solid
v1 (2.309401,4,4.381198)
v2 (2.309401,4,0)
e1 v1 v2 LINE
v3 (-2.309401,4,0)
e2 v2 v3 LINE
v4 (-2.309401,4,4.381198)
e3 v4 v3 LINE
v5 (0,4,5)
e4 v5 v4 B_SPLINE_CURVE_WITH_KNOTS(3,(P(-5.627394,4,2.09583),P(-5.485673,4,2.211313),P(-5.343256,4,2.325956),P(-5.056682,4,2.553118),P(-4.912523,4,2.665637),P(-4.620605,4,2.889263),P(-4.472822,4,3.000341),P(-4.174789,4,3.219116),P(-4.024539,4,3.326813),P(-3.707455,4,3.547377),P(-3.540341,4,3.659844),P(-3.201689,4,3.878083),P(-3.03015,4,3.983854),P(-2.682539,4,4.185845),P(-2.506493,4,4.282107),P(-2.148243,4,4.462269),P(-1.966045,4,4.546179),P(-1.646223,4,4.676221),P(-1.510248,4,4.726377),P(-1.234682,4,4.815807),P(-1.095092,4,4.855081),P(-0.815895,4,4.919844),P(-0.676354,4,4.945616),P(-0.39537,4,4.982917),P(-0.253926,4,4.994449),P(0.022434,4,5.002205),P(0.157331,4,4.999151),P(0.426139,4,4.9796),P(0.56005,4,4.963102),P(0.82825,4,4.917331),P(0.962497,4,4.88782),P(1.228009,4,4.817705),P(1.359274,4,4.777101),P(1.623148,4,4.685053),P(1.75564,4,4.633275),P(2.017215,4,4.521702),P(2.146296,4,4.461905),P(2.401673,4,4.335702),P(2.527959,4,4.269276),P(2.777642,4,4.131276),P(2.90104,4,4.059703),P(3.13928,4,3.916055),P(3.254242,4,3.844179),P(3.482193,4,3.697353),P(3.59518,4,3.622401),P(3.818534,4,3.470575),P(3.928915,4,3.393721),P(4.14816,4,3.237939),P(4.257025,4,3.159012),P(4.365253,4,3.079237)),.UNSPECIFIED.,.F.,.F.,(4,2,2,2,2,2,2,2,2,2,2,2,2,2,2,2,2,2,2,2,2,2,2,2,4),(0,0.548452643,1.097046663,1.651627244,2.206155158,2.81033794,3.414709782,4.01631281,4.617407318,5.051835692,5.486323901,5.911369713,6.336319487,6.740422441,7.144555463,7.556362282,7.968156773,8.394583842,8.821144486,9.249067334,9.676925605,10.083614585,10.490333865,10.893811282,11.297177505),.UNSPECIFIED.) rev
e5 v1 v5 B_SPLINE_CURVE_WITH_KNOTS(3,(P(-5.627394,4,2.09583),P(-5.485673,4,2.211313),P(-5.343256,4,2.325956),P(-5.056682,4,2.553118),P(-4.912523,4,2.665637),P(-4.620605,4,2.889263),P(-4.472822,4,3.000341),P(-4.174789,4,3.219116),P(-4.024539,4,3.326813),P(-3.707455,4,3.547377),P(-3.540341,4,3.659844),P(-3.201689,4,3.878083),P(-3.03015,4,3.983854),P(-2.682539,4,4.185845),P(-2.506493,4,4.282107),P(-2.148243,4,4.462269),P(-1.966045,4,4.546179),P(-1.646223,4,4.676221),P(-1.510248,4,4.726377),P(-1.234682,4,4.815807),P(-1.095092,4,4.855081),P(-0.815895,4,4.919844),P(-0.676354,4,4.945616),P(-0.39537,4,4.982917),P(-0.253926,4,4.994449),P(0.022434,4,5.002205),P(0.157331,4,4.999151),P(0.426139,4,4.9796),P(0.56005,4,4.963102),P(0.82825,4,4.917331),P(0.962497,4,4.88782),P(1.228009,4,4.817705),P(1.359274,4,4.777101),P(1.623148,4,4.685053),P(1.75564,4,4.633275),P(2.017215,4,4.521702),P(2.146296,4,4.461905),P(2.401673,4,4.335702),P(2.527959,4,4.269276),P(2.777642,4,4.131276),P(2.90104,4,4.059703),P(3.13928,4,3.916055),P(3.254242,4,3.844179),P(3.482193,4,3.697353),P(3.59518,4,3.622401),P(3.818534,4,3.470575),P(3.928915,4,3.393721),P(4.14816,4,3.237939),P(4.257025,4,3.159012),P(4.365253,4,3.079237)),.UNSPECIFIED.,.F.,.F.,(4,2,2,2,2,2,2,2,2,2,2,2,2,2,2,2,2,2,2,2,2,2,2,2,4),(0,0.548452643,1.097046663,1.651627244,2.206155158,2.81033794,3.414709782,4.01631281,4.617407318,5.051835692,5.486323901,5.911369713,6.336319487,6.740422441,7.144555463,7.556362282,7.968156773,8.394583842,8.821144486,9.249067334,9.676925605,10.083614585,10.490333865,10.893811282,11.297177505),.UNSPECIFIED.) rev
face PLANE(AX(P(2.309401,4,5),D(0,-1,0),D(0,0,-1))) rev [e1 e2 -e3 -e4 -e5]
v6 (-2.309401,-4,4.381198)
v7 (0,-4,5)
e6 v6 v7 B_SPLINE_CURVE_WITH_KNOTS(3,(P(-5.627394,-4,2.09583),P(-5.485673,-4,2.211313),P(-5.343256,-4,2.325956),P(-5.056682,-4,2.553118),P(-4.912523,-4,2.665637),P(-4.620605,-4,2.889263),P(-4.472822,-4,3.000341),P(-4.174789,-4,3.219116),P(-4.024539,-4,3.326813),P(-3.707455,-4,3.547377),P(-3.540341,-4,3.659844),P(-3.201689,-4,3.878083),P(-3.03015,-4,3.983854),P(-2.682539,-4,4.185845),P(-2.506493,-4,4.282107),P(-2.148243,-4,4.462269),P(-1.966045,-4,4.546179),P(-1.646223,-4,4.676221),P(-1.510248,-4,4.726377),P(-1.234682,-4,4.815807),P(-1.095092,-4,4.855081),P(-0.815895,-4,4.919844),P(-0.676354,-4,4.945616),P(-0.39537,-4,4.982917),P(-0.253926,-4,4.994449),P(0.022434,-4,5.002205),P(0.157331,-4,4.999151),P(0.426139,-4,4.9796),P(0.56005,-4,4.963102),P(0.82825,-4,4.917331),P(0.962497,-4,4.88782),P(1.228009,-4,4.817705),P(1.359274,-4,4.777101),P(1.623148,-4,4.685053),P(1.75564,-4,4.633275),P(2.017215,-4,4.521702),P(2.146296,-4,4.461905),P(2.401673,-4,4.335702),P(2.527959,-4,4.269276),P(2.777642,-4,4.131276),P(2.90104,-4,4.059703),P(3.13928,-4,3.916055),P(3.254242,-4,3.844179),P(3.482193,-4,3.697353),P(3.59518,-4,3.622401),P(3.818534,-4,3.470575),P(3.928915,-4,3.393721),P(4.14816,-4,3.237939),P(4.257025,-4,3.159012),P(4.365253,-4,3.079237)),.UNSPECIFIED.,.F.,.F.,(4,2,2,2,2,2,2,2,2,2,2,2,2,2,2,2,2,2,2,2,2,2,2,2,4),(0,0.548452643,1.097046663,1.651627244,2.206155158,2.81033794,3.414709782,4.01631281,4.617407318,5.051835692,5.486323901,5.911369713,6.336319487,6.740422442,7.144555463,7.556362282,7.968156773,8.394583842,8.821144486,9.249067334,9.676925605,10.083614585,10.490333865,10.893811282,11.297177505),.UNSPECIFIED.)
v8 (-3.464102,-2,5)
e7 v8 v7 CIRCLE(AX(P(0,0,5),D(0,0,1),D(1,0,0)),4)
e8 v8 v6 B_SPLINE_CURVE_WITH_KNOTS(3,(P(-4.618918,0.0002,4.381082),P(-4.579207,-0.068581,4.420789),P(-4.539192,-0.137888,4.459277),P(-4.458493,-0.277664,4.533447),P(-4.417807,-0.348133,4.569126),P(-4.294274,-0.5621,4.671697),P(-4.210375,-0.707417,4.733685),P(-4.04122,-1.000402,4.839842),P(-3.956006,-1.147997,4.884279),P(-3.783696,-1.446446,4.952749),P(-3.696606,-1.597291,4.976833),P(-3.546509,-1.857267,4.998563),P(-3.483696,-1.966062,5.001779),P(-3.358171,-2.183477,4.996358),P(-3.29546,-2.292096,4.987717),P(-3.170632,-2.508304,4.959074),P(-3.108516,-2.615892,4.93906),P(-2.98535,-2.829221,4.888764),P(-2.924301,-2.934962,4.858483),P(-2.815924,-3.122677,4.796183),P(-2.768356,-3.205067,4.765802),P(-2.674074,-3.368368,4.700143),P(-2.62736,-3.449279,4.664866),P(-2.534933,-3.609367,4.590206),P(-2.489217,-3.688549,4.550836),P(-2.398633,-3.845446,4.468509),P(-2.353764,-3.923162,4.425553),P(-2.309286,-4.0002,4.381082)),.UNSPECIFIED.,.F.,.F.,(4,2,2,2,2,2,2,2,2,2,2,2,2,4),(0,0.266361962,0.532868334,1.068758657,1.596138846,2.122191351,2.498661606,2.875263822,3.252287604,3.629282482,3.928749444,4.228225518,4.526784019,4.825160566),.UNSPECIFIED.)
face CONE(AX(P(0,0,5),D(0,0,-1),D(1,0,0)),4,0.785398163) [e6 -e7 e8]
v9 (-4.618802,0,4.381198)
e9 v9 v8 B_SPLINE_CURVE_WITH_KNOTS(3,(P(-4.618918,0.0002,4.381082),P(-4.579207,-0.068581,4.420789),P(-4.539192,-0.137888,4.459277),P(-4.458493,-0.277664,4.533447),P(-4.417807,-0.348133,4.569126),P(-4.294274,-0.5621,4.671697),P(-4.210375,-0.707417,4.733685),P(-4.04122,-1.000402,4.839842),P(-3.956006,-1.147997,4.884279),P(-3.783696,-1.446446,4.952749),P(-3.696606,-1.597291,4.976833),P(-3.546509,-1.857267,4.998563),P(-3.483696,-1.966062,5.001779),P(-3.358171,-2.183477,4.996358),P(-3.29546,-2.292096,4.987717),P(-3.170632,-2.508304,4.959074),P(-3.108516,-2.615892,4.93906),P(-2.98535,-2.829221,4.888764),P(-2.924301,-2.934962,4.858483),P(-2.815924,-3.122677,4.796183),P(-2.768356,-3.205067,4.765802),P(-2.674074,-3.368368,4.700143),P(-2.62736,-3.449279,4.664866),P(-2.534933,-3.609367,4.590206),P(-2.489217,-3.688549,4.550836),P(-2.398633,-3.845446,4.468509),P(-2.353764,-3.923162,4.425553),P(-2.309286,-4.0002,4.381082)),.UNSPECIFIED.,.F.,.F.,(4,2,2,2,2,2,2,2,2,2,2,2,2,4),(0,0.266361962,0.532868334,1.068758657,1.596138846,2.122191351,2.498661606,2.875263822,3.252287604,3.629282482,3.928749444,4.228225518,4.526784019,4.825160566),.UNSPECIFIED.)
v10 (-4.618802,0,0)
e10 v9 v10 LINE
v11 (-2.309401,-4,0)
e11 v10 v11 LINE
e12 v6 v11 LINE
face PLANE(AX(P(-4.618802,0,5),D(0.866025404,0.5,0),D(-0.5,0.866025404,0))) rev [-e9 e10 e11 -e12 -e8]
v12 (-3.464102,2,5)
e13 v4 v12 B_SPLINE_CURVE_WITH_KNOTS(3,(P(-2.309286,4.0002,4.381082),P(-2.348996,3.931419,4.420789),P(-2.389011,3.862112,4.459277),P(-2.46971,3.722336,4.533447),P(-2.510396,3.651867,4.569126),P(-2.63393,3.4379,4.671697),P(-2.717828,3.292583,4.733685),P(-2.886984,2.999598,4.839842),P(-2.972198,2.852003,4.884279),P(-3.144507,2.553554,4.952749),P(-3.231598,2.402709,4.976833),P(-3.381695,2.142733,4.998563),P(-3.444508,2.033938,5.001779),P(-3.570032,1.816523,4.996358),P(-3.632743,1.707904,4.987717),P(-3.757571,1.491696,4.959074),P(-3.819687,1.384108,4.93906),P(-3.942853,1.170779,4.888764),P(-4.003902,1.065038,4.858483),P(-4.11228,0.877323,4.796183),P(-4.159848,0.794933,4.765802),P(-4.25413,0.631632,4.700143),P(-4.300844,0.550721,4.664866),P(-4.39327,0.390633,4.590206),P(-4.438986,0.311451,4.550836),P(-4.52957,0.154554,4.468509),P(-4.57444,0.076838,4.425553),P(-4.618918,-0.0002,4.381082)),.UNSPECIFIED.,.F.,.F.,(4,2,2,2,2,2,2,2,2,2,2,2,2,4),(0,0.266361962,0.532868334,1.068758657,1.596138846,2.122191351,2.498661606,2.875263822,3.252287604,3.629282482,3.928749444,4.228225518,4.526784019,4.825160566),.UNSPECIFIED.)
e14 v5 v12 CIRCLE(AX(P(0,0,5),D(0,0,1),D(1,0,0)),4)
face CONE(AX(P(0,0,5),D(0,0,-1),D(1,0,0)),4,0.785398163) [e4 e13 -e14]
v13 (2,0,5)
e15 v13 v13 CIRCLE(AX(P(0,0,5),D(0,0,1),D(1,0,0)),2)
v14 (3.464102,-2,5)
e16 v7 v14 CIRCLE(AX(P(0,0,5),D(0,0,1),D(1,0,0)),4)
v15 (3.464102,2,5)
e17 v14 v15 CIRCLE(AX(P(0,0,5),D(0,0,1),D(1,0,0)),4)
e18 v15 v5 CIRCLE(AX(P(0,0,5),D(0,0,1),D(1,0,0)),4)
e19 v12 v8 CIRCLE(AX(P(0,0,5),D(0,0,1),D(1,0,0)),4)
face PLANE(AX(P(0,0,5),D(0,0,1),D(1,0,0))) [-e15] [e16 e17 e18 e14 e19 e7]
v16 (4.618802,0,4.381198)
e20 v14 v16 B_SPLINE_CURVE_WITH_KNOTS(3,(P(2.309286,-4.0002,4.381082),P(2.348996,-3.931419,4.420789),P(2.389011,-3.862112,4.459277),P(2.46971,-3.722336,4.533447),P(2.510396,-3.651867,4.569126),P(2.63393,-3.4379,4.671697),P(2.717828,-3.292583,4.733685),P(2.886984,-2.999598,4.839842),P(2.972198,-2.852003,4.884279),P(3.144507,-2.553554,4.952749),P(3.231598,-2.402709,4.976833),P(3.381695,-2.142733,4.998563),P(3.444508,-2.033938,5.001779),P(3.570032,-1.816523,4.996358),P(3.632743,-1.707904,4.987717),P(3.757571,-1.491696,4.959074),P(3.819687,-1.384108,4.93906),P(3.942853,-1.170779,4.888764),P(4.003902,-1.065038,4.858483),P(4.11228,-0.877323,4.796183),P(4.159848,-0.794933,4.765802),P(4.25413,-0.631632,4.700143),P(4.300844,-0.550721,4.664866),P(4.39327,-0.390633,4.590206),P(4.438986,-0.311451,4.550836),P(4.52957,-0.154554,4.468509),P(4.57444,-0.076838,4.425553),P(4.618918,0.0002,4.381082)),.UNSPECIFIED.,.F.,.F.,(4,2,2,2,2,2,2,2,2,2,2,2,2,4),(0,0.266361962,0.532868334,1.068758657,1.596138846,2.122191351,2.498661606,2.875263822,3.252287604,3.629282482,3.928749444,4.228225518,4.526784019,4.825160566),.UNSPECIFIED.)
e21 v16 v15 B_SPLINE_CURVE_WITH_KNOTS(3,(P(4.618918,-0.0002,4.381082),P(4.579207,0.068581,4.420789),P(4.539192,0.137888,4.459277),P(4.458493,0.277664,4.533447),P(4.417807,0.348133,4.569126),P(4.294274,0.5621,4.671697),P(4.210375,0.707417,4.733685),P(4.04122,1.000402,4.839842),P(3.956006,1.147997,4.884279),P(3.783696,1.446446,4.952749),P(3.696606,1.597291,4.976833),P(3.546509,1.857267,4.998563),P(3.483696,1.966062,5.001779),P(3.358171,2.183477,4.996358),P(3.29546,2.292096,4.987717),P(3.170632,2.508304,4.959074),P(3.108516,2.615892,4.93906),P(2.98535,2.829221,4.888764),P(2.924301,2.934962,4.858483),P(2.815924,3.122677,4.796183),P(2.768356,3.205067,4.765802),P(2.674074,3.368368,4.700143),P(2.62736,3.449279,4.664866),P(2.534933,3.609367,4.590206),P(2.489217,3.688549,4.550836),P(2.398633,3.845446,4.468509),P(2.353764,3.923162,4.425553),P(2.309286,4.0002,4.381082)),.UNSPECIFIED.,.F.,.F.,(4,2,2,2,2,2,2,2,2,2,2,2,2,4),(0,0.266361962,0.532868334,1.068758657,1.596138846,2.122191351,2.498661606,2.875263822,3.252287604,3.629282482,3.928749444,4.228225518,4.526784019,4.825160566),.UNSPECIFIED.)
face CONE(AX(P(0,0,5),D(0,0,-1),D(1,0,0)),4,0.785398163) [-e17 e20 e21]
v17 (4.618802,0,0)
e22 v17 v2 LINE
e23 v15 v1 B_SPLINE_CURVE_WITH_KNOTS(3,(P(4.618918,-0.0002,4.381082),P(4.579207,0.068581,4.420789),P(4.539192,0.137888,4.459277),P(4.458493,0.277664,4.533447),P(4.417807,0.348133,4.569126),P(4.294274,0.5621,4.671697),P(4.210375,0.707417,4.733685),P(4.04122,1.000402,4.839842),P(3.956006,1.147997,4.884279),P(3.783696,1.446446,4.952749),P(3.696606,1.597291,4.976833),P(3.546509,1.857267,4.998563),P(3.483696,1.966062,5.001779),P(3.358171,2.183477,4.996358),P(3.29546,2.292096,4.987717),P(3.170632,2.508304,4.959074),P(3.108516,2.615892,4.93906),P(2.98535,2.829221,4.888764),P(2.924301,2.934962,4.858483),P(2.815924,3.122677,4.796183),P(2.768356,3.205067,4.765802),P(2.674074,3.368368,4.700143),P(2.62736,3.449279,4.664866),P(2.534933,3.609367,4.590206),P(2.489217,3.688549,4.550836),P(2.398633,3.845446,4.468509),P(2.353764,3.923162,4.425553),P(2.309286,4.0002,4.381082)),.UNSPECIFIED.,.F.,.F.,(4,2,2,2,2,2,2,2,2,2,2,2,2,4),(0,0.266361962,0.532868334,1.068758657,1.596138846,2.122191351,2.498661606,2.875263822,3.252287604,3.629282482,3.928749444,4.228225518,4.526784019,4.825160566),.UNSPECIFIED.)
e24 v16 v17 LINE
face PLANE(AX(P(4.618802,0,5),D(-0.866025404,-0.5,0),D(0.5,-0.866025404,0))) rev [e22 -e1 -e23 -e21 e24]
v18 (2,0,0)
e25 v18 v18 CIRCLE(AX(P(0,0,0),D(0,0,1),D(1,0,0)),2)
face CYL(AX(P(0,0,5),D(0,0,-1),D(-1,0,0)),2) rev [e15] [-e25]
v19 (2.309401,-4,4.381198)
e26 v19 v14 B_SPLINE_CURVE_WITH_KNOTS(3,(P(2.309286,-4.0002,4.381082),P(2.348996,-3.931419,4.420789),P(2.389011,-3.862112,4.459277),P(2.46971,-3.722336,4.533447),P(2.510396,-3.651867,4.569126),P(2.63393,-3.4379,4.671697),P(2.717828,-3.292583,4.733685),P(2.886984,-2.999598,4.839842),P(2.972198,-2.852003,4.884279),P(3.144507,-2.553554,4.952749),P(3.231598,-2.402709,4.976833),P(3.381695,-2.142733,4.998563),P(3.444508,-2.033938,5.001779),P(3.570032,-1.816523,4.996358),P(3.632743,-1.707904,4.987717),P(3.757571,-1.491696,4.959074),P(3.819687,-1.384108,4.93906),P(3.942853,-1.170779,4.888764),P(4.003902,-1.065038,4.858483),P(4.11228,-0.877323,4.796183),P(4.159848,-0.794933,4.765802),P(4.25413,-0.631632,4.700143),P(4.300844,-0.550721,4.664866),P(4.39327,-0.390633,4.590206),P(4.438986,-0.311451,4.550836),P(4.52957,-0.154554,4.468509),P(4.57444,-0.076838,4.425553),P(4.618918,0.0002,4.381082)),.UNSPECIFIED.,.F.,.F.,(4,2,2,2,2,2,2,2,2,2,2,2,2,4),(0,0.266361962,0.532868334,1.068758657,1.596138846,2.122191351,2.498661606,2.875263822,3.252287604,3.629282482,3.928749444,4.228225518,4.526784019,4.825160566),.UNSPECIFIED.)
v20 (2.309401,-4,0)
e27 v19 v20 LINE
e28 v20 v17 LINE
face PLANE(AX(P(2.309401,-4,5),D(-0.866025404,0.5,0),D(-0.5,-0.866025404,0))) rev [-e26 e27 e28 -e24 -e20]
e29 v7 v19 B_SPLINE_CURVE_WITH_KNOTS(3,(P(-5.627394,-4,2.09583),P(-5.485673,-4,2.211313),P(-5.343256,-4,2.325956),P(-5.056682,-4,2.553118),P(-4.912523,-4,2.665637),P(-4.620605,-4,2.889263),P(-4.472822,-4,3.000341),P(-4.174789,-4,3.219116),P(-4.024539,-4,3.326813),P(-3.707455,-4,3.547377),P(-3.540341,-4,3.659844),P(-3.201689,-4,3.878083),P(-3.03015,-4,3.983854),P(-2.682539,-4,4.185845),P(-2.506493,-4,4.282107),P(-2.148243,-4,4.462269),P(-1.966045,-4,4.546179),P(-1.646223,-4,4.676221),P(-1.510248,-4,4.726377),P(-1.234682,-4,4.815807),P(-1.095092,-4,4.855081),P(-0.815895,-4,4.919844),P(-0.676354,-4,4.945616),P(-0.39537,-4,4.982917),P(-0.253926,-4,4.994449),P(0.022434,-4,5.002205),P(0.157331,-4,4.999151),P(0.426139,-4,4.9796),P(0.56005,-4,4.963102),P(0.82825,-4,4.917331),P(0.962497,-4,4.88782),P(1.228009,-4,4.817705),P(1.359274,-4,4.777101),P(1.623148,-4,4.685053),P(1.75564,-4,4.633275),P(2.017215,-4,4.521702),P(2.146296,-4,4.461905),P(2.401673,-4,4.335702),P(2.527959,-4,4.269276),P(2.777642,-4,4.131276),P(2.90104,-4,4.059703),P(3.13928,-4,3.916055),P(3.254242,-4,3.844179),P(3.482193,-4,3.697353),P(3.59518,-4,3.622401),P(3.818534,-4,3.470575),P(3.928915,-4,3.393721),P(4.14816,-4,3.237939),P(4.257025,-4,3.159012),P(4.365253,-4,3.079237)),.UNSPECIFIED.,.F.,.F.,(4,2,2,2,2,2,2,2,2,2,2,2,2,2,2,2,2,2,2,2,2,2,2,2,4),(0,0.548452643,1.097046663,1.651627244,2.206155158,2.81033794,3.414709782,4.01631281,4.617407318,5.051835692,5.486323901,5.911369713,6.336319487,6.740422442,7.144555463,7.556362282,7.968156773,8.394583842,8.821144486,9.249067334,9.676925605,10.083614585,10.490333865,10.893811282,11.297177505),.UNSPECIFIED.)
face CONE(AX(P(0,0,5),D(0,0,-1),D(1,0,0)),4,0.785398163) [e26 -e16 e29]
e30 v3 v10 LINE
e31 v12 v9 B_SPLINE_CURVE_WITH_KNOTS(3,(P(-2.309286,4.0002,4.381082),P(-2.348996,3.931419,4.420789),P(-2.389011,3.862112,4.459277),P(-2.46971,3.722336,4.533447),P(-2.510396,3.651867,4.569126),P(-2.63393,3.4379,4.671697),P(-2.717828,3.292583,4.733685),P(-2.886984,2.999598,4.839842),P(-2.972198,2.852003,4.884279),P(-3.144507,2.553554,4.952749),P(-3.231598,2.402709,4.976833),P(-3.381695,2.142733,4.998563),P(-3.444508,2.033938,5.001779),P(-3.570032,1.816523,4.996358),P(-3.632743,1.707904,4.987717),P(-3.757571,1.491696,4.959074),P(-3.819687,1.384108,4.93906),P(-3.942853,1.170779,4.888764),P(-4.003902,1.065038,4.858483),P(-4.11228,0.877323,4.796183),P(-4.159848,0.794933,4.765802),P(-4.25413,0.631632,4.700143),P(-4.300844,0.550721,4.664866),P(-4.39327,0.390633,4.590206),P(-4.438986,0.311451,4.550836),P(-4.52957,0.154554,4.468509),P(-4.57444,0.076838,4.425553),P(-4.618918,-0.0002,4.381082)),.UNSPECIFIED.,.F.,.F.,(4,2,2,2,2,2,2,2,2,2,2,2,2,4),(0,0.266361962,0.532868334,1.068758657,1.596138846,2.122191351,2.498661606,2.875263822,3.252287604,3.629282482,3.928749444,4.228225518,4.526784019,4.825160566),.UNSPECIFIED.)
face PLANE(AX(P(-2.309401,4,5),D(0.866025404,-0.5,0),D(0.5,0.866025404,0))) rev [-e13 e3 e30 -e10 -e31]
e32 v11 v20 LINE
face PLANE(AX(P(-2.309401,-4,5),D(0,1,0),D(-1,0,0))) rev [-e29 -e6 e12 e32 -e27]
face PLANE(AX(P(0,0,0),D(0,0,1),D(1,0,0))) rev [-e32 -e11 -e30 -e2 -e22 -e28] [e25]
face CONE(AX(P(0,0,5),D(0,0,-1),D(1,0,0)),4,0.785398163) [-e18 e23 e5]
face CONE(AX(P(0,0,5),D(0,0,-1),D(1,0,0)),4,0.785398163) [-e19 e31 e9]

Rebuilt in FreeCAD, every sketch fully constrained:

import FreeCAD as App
import Part
import Sketcher
from FreeCAD import Vector
Q = App.Units.Quantity

doc = App.newDocument("Part")
body = doc.addObject("PartDesign::Body", "Body")

# Sketch on XY plane
sketch1 = doc.addObject("Sketcher::SketchObject", "Sketch")
body.addObject(sketch1)
sketch1.AttachmentSupport = (doc.XY_Plane, [""])
sketch1.MapMode = "FlatFace"
sketch1.addGeometry(Part.LineSegment(Vector(2.3, -4, 0), Vector(4.6, 0, 0)), False)
sketch1.addGeometry(Part.LineSegment(Vector(4.6, 0, 0), Vector(2.3, 4, 0)), False)
sketch1.addGeometry(Part.LineSegment(Vector(2.3, 4, 0), Vector(-2.3, 4, 0)), False)
sketch1.addGeometry(Part.LineSegment(Vector(-2.3, 4, 0), Vector(-4.6, 0, 0)), False)
sketch1.addGeometry(Part.LineSegment(Vector(-4.6, 0, 0), Vector(-2.3, -4, 0)), False)
sketch1.addGeometry(Part.LineSegment(Vector(-2.3, -4, 0), Vector(2.3, -4, 0)), False)
sketch1.addGeometry(Part.Circle(Vector(0, 0, 0), Vector(0, 0, 1), 2), False)
sketch1.addConstraint(Sketcher.Constraint("Coincident", 0, 2, 1, 1))
sketch1.addConstraint(Sketcher.Constraint("Coincident", 1, 2, 2, 1))
sketch1.addConstraint(Sketcher.Constraint("Coincident", 2, 2, 3, 1))
sketch1.addConstraint(Sketcher.Constraint("Coincident", 3, 2, 4, 1))
sketch1.addConstraint(Sketcher.Constraint("Coincident", 4, 2, 5, 1))
sketch1.addConstraint(Sketcher.Constraint("Coincident", 5, 2, 0, 1))
sketch1.addConstraint(Sketcher.Constraint("Horizontal", 2))
sketch1.addConstraint(Sketcher.Constraint("Horizontal", 5))
sketch1.addConstraint(Sketcher.Constraint("Coincident", 6, 3, -1, 1))
sketch1.addConstraint(Sketcher.Constraint("Symmetric", 0, 2, 3, 2, -1, 1))
sketch1.addConstraint(Sketcher.Constraint("Symmetric", 1, 2, 4, 2, -1, 1))
sketch1.addConstraint(Sketcher.Constraint("PointOnObject", 0, 2, -1))
sketch1.addConstraint(Sketcher.Constraint("Parallel", 0, 3))
sketch1.addConstraint(Sketcher.Constraint("Vertical", 2, 2, 4, 2))
sketch1.addConstraint(Sketcher.Constraint("Diameter", 6, 4.0))
sketch1.addConstraint(Sketcher.Constraint("Angle", 0, Q("60 deg")))
sketch1.addConstraint(Sketcher.Constraint("DistanceY", -1, 1, 1, 2, 4.0))
sketch1.addConstraint(Sketcher.Constraint("DistanceX", -1, 1, 1, 2, 2.309401))
pad1 = doc.addObject("PartDesign::Pad", "Pad")
body.addObject(pad1)
pad1.Profile = sketch1
pad1.Length = 5

# Sketch on XY plane
sketch2 = doc.addObject("Sketcher::SketchObject", "Sketch001")
body.addObject(sketch2)
sketch2.AttachmentSupport = (doc.XY_Plane, [""])
sketch2.MapMode = "FlatFace"
sketch2.AttachmentOffset = App.Placement(Vector(0, 0, 5), App.Rotation())
sketch2.addGeometry(Part.Circle(Vector(0, 0, 0), Vector(0, 0, 1), 7.8), False)
sketch2.addGeometry(Part.Circle(Vector(0, 0, 0), Vector(0, 0, 1), 4), False)
sketch2.addConstraint(Sketcher.Constraint("Coincident", 0, 3, -1, 1))
sketch2.addConstraint(Sketcher.Constraint("Coincident", 1, 3, -1, 1))
sketch2.addConstraint(Sketcher.Constraint("Diameter", 1, 8.0))
sketch2.addConstraint(Sketcher.Constraint("Diameter", 0, 15.500375))
pocket1 = doc.addObject("PartDesign::Pocket", "Pocket")
body.addObject(pocket1)
pocket1.Profile = sketch2
pocket1.Length = 1
pocket1.TaperAngle = 45

doc.recompute()
